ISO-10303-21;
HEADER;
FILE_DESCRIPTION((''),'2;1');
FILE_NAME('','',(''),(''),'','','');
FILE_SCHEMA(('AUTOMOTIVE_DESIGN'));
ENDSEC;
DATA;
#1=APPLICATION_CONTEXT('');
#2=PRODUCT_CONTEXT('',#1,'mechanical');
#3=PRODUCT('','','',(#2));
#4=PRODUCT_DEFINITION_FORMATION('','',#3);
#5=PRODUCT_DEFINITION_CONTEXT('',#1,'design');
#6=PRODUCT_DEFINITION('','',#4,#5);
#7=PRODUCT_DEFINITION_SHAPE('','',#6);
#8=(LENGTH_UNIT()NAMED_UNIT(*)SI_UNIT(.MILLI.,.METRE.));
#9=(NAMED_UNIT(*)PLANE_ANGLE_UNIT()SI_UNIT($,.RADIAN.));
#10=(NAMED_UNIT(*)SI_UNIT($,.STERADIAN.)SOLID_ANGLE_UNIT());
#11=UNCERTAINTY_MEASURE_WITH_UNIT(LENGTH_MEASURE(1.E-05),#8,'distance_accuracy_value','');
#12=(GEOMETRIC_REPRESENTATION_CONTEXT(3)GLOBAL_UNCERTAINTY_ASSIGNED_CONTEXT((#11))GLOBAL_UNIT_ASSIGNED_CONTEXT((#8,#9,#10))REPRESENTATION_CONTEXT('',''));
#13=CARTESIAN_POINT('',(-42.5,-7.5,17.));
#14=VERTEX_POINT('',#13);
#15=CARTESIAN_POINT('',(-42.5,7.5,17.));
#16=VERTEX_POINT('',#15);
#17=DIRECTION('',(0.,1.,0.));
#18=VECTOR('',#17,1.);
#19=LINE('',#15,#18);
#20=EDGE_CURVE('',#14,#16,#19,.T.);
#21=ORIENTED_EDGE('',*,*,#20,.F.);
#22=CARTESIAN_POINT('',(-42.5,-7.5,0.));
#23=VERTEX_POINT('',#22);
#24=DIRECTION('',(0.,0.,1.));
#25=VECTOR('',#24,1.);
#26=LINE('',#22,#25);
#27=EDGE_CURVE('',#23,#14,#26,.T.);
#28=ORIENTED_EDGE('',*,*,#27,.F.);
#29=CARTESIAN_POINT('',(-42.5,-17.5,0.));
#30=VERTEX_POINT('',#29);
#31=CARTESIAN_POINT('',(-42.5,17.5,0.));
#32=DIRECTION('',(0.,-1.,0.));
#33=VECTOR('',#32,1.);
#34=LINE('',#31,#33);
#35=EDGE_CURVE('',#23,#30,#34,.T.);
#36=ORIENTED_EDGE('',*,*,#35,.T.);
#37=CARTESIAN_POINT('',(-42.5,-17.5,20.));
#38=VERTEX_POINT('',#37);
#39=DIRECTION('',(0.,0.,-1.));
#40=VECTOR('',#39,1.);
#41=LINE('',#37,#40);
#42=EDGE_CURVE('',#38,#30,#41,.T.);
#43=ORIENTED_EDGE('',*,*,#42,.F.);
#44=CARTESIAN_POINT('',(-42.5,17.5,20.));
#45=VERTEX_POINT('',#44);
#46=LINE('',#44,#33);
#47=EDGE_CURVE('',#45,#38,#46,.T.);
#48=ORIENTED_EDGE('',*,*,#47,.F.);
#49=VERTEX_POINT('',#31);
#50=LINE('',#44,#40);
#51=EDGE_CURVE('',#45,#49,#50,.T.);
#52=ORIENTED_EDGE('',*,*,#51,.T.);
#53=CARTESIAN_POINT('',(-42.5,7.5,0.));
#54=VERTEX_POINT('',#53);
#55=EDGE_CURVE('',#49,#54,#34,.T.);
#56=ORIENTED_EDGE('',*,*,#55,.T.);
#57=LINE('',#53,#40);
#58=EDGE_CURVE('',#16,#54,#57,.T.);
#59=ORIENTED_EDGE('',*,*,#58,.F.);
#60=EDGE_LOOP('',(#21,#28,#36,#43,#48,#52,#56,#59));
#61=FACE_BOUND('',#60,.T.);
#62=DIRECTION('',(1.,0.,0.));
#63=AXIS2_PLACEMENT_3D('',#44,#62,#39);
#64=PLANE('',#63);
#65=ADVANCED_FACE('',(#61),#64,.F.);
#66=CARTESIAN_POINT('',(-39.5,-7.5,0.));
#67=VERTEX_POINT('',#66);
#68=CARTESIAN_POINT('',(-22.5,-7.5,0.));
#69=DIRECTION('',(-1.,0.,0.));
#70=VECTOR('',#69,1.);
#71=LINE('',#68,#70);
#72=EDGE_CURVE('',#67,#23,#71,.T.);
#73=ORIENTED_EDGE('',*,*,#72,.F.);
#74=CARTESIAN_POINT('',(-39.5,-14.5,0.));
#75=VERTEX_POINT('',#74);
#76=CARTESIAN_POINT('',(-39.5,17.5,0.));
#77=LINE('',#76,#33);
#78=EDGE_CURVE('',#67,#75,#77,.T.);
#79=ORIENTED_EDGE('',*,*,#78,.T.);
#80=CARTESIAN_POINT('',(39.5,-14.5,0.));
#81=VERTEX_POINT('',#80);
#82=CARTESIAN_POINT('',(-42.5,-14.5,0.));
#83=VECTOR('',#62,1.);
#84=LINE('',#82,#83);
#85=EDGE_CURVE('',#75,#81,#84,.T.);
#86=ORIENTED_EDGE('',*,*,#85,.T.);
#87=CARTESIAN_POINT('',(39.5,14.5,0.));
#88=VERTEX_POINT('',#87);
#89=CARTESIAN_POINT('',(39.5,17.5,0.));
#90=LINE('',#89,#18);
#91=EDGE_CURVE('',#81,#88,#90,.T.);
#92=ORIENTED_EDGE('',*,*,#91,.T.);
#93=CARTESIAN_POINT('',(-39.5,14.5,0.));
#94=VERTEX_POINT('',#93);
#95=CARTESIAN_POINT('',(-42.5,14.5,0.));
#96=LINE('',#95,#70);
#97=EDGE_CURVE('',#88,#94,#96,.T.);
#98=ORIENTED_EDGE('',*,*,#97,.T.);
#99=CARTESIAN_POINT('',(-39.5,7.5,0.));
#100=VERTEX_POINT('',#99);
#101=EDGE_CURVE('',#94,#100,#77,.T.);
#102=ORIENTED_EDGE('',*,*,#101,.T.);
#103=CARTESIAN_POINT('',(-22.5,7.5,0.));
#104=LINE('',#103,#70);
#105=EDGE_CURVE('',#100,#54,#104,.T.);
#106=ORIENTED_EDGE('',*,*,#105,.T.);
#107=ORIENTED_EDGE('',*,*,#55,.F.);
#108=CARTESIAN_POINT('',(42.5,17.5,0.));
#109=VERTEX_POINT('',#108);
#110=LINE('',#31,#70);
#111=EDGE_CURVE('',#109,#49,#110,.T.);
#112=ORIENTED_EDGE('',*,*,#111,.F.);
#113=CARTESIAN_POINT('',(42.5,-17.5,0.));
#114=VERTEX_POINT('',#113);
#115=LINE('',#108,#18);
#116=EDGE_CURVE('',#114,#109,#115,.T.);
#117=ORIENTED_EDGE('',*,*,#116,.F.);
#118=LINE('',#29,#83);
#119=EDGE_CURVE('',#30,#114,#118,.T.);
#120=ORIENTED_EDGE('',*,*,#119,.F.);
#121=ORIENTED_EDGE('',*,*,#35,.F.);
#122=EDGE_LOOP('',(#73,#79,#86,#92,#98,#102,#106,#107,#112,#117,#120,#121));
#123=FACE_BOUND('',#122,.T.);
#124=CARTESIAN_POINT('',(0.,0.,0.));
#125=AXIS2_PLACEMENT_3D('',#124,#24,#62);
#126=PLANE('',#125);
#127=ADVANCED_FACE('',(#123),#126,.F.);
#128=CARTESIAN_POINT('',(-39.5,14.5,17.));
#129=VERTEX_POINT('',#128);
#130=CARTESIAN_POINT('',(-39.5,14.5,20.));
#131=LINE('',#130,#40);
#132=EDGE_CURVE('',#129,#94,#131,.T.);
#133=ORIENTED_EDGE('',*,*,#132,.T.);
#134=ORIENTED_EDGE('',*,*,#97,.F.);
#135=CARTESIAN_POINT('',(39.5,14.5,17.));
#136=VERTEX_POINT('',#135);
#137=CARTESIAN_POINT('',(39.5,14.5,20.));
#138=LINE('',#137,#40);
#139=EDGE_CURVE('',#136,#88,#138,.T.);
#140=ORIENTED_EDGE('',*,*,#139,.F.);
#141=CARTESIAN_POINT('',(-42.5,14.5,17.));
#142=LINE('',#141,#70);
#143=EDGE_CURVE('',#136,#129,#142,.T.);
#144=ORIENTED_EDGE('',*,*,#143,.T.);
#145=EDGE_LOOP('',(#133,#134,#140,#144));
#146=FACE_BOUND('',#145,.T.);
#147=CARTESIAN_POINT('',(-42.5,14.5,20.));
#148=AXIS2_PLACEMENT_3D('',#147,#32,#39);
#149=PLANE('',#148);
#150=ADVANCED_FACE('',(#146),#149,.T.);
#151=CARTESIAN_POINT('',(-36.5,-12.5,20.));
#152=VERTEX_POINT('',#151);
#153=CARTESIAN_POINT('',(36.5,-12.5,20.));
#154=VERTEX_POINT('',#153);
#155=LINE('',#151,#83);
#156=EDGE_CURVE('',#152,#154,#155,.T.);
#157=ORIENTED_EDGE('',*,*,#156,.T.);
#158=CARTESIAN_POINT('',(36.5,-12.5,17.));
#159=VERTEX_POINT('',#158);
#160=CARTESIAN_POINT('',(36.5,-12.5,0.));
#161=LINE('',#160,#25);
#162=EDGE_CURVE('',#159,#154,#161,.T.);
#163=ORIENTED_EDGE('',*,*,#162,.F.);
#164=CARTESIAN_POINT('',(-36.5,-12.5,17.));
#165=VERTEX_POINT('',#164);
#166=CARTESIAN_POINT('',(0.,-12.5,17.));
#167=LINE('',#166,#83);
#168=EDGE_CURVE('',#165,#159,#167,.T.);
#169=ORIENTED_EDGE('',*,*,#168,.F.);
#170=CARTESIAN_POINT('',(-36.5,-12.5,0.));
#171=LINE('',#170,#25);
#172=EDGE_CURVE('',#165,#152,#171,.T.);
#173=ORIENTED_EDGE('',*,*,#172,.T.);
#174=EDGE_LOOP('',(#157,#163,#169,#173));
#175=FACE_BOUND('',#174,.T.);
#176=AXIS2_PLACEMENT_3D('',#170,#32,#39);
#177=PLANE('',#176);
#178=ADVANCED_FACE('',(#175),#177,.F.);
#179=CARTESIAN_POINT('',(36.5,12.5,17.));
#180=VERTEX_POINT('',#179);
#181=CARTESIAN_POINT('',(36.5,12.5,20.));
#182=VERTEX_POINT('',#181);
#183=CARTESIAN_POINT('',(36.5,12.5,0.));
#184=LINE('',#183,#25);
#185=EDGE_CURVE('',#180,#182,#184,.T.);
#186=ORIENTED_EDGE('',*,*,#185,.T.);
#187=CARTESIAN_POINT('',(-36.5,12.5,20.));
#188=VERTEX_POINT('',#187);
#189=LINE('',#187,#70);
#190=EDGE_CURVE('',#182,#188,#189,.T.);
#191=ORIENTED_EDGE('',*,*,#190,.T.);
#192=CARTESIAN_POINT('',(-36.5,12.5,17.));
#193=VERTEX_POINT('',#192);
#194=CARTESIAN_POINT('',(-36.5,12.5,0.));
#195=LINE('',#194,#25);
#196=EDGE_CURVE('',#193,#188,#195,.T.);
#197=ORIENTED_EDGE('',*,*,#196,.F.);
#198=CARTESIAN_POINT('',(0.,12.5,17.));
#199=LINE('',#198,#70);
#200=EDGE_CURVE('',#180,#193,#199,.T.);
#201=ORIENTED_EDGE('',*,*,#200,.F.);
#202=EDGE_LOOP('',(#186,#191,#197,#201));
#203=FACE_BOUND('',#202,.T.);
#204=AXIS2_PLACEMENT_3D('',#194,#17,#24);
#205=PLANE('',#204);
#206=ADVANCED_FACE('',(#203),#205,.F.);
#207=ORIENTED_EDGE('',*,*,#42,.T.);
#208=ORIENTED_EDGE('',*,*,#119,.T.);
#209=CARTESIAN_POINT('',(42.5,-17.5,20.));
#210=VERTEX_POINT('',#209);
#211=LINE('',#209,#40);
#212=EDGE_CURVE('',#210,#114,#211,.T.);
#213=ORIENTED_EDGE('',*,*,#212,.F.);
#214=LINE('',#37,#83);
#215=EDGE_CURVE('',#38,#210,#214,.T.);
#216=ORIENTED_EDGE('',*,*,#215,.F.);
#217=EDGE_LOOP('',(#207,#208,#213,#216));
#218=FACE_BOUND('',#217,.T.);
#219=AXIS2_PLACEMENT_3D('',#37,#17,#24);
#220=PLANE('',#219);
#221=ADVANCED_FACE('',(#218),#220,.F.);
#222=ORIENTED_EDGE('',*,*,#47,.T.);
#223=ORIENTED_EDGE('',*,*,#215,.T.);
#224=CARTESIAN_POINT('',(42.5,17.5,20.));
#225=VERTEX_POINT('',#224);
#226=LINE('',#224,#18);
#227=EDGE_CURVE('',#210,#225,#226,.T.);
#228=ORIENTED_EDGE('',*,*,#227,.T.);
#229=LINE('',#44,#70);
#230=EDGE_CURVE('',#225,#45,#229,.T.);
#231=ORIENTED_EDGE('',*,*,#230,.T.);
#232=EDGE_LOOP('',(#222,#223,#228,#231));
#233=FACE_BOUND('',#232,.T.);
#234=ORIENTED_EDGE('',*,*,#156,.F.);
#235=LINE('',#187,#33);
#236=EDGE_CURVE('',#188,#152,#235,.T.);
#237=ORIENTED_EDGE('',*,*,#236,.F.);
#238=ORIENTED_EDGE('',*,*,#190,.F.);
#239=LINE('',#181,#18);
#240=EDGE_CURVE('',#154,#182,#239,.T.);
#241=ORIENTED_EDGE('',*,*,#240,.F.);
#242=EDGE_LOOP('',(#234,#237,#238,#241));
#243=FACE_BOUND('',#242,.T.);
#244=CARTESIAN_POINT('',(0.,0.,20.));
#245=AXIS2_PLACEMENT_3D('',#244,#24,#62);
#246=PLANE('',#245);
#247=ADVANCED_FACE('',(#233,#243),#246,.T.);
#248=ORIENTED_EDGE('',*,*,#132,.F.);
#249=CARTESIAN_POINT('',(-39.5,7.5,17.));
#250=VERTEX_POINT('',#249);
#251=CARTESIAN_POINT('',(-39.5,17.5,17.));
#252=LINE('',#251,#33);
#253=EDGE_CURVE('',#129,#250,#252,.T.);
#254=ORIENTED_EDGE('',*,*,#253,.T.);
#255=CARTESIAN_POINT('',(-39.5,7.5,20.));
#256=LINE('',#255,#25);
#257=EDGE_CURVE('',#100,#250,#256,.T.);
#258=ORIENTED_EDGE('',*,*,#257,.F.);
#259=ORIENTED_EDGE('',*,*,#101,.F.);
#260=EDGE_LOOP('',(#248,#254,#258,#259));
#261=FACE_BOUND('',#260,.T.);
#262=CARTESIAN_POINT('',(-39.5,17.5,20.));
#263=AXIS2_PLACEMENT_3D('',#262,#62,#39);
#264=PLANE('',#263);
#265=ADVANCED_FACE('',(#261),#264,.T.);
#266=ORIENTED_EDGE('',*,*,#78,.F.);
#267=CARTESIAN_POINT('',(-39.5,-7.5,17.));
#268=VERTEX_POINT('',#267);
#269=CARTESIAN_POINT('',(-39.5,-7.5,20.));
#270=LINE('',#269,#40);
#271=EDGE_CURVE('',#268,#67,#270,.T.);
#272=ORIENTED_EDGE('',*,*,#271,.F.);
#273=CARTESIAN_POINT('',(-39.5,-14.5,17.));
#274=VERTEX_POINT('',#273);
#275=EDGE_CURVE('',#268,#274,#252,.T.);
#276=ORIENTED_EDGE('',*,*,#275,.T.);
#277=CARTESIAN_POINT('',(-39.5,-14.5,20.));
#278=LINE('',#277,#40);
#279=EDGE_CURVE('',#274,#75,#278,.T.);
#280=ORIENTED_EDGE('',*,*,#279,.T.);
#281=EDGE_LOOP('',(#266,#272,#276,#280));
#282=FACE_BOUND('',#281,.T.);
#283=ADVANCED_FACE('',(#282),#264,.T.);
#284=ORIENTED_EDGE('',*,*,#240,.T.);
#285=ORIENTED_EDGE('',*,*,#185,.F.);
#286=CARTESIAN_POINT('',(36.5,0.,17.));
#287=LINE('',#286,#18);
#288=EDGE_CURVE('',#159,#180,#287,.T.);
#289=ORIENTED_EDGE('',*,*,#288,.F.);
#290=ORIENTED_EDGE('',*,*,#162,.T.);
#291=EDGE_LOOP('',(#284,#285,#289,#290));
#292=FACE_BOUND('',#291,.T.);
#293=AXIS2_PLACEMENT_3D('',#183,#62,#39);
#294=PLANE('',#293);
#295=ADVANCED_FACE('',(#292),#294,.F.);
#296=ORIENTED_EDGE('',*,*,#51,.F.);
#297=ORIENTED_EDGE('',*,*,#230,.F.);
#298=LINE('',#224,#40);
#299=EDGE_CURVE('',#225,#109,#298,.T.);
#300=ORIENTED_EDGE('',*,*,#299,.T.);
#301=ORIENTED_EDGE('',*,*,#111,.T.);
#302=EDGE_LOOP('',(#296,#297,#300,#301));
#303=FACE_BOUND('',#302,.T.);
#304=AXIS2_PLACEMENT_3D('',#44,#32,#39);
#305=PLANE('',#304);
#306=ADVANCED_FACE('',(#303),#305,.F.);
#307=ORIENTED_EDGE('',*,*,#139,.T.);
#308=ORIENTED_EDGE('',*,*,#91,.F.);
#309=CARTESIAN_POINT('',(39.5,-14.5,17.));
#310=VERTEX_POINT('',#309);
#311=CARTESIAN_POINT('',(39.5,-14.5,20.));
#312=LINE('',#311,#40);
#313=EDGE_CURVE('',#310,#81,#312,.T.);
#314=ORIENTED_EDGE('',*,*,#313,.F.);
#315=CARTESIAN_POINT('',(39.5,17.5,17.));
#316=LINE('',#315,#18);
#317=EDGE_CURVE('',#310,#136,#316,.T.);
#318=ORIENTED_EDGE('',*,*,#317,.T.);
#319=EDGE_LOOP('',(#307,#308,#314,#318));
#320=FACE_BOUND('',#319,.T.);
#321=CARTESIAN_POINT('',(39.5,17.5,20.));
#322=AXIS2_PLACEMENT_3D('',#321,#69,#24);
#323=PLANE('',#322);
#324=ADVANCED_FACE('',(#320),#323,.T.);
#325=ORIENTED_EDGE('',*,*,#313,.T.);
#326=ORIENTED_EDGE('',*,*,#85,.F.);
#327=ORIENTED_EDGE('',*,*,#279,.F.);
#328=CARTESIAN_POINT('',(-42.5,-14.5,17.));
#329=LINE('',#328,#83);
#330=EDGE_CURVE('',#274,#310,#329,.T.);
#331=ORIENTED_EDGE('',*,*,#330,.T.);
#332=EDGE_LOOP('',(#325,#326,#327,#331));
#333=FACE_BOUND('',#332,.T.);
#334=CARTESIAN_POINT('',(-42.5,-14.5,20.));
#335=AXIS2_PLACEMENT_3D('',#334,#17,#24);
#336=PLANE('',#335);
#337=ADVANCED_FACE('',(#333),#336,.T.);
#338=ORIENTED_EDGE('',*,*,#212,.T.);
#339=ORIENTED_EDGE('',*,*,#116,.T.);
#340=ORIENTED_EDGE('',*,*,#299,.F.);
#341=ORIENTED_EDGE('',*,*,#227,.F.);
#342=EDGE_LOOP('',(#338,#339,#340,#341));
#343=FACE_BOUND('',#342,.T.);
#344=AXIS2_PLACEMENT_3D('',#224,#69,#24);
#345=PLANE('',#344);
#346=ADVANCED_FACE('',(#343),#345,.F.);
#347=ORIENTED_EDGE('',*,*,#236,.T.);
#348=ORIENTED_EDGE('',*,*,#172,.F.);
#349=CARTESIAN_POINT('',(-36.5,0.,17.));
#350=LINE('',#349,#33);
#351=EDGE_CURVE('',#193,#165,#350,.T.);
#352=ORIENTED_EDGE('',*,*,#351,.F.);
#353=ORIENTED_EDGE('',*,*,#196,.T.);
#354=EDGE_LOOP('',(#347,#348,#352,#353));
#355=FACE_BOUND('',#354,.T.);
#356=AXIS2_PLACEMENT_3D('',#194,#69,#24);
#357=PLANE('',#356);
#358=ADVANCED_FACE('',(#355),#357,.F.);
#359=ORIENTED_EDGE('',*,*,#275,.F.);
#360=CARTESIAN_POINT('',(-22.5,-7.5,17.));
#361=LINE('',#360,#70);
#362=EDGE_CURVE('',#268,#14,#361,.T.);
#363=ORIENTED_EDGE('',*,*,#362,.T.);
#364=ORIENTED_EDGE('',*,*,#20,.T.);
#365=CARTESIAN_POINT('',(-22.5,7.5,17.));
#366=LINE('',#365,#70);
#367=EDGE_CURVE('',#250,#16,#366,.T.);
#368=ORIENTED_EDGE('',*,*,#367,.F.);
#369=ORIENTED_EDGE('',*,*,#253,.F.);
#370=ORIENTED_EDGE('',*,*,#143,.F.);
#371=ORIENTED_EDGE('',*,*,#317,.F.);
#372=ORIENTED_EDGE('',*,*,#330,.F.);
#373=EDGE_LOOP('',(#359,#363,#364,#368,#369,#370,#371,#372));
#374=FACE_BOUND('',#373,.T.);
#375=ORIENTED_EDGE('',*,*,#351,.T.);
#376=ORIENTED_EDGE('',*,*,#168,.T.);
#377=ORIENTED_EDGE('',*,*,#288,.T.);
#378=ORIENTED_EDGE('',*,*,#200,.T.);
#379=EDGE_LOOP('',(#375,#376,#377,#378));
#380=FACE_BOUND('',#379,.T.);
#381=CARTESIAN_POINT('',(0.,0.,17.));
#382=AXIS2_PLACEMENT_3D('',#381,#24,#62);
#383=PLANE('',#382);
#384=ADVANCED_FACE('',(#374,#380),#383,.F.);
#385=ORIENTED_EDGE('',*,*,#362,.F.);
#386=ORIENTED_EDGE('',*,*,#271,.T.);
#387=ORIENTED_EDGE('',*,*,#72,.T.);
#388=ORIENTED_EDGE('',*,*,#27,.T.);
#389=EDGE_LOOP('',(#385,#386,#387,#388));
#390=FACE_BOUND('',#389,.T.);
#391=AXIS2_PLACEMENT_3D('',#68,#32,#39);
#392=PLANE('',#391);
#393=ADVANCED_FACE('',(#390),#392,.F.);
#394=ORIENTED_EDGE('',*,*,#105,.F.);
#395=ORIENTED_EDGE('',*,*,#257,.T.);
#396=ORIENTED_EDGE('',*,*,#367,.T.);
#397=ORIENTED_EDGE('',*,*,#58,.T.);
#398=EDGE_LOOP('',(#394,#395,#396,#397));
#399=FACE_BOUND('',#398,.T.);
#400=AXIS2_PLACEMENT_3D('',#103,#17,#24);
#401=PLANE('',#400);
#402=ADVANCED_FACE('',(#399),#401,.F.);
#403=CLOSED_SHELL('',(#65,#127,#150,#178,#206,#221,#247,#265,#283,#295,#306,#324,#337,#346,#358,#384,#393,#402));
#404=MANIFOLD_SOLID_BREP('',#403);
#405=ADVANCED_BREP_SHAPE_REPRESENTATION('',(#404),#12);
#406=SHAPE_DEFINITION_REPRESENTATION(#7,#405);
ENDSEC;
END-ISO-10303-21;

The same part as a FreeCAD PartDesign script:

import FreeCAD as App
import Part
import Sketcher
from FreeCAD import Vector
Q = App.Units.Quantity


def faces_at(feature, points):
    """Names of the faces that lie closest to the given points."""
    faces = feature.Shape.Faces
    near = lambda p: min(range(len(faces)), key=lambda i: faces[i].distToShape(Part.Vertex(*p))[0])
    return sorted({f"Face{near(p) + 1}" for p in points})

doc = App.newDocument("Part")
params = doc.addObject("Spreadsheet::Sheet", "Params")
for row, (alias, value) in enumerate([
    ("sketch1_width", "85 mm"),
    ("sketch1_height", "35 mm"),
    ("pad1_length", "20 mm"),
    ("thickness_wall", "3 mm"),
    ("sketch2_width", "15 mm"),
    ("sketch2_height", "17 mm"),
    ("pocket1_length", "20 mm"),
    ("sketch3_width", "73 mm"),
    ("sketch3_height", "25 mm"),
    ("pocket2_length", "20 mm"),
], start=1):
    params.set(f"A{row}", alias)
    params.set(f"B{row}", "=" + value)
    params.setAlias(f"B{row}", alias)

body = doc.addObject("PartDesign::Body", "Body")

# Sketch on XY plane
sketch1 = body.newObject("Sketcher::SketchObject", "Sketch")
sketch1.AttachmentSupport = (doc.getObject("XY_Plane"), [""])
sketch1.MapMode = "FlatFace"
sketch1.addGeometry([
    Part.LineSegment(Vector(-42, 18, 0), Vector(-42, -18, 0)),
    Part.LineSegment(Vector(-42, -18, 0), Vector(42, -18, 0)),
    Part.LineSegment(Vector(42, -18, 0), Vector(42, 18, 0)),
    Part.LineSegment(Vector(42, 18, 0), Vector(-42, 18, 0)),
], False)
sketch1.addConstraint([
    Sketcher.Constraint("Coincident", 0, 2, 1, 1),
    Sketcher.Constraint("Coincident", 1, 2, 2, 1),
    Sketcher.Constraint("Coincident", 2, 2, 3, 1),
    Sketcher.Constraint("Coincident", 3, 2, 0, 1),
    Sketcher.Constraint("Vertical", 0),
    Sketcher.Constraint("Horizontal", 1),
    Sketcher.Constraint("Vertical", 2),
    Sketcher.Constraint("Horizontal", 3),
    Sketcher.Constraint("Symmetric", 0, 2, 2, 2, -1, 1),
    Sketcher.Constraint("DistanceX", 1, 1, 1, 2, Q("85 mm")),
    Sketcher.Constraint("DistanceY", 0, 2, 0, 1, Q("35 mm")),
])
sketch1.setExpression("Constraints[9]", "Params.sketch1_width")
sketch1.setExpression("Constraints[10]", "Params.sketch1_height")
pad1 = body.newObject("PartDesign::Pad", "Pad")
pad1.Profile = sketch1
pad1.setExpression("Length", "Params.pad1_length")
doc.recompute()

thickness = body.newObject("PartDesign::Thickness", "Thickness")
thickness.Base = (pad1, faces_at(pad1, [(0, 0, 0)]))
thickness.setExpression("Value", "Params.thickness_wall")
thickness.Reversed = True
thickness.Join = "Intersection"

# Sketch on YZ plane
sketch2 = body.newObject("Sketcher::SketchObject", "Sketch001")
sketch2.AttachmentSupport = (doc.getObject("YZ_Plane"), [""])
sketch2.MapMode = "FlatFace"
sketch2.AttachmentOffset = App.Placement(Vector(0, 0, -42.5), App.Rotation())
sketch2.addGeometry([
    Part.LineSegment(Vector(8, 0, 0), Vector(-8, 0, 0)),
    Part.LineSegment(Vector(-8, 0, 0), Vector(-8, 17, 0)),
    Part.LineSegment(Vector(-8, 17, 0), Vector(8, 17, 0)),
    Part.LineSegment(Vector(8, 17, 0), Vector(8, 0, 0)),
], False)
sketch2.addConstraint([
    Sketcher.Constraint("Coincident", 0, 2, 1, 1),
    Sketcher.Constraint("Coincident", 1, 2, 2, 1),
    Sketcher.Constraint("Coincident", 2, 2, 3, 1),
    Sketcher.Constraint("Coincident", 3, 2, 0, 1),
    Sketcher.Constraint("Horizontal", 0),
    Sketcher.Constraint("Vertical", 1),
    Sketcher.Constraint("Horizontal", 2),
    Sketcher.Constraint("Vertical", 3),
    Sketcher.Constraint("Symmetric", 0, 2, 3, 2, -1, 1),
    Sketcher.Constraint("DistanceX", 0, 2, 0, 1, Q("15 mm")),
    Sketcher.Constraint("DistanceY", 1, 1, 1, 2, Q("17 mm")),
])
sketch2.setExpression("Constraints[9]", "Params.sketch2_width")
sketch2.setExpression("Constraints[10]", "Params.sketch2_height")
pocket1 = body.newObject("PartDesign::Pocket", "Pocket")
pocket1.Profile = sketch2
pocket1.setExpression("Length", "Params.pocket1_length")
pocket1.Reversed = True

# Sketch on XY plane
sketch3 = body.newObject("Sketcher::SketchObject", "Sketch002")
sketch3.AttachmentSupport = (doc.getObject("XY_Plane"), [""])
sketch3.MapMode = "FlatFace"
sketch3.AttachmentOffset = App.Placement(Vector(0, 0, 20), App.Rotation())
sketch3.addGeometry([
    Part.LineSegment(Vector(-36, 12, 0), Vector(-36, -12, 0)),
    Part.LineSegment(Vector(-36, -12, 0), Vector(36, -12, 0)),
    Part.LineSegment(Vector(36, -12, 0), Vector(36, 12, 0)),
    Part.LineSegment(Vector(36, 12, 0), Vector(-36, 12, 0)),
], False)
sketch3.addConstraint([
    Sketcher.Constraint("Coincident", 0, 2, 1, 1),
    Sketcher.Constraint("Coincident", 1, 2, 2, 1),
    Sketcher.Constraint("Coincident", 2, 2, 3, 1),
    Sketcher.Constraint("Coincident", 3, 2, 0, 1),
    Sketcher.Constraint("Vertical", 0),
    Sketcher.Constraint("Horizontal", 1),
    Sketcher.Constraint("Vertical", 2),
    Sketcher.Constraint("Horizontal", 3),
    Sketcher.Constraint("Symmetric", 0, 2, 2, 2, -1, 1),
    Sketcher.Constraint("DistanceX", 1, 1, 1, 2, Q("73 mm")),
    Sketcher.Constraint("DistanceY", 0, 2, 0, 1, Q("25 mm")),
])
sketch3.setExpression("Constraints[9]", "Params.sketch3_width")
sketch3.setExpression("Constraints[10]", "Params.sketch3_height")
pocket2 = body.newObject("PartDesign::Pocket", "Pocket001")
pocket2.Profile = sketch3
pocket2.setExpression("Length", "Params.pocket2_length")

doc.recompute()
